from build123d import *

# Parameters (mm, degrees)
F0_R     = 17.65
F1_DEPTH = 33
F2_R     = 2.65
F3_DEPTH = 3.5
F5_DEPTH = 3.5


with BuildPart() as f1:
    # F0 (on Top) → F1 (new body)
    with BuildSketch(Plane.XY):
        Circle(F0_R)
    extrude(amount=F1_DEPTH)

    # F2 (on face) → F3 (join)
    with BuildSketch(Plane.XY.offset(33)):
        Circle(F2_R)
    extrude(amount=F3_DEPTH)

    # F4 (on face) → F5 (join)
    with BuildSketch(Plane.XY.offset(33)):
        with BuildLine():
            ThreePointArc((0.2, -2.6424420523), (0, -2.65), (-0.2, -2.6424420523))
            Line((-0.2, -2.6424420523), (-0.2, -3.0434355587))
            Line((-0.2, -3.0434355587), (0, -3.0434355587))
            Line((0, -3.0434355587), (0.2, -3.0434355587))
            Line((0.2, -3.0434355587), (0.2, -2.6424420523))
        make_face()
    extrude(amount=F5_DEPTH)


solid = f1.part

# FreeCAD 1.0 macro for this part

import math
import FreeCAD as App
import Part
import Sketcher

V = App.Vector
Q = App.Units.Quantity

doc = App.newDocument("Part")
body = doc.addObject("PartDesign::Body", "Body")

sketch1 = body.newObject("Sketcher::SketchObject", "Sketch")
sketch1.AttachmentSupport = (doc.getObject("XY_Plane"), [""])
sketch1.MapMode = "FlatFace"
sketch1.addGeometry(Part.Circle(V(0, 0, 0), V(0, 0, 1), 18), False)
sketch1.addConstraint(Sketcher.Constraint("Coincident", 0, 3, -1, 1))
sketch1.addConstraint(Sketcher.Constraint("Diameter", 0, Q("35.3 mm")))
pad1 = body.newObject("PartDesign::Pad", "Pad")
pad1.Profile = sketch1
pad1.Length = 33

sketch2 = body.newObject("Sketcher::SketchObject", "Sketch001")
sketch2.AttachmentSupport = (doc.getObject("XY_Plane"), [""])
sketch2.MapMode = "FlatFace"
sketch2.AttachmentOffset = App.Placement(V(0, 0, 33), App.Rotation())
sketch2.addGeometry(Part.Circle(V(0, 0, 0), V(0, 0, 1), 2.6), False)
sketch2.addConstraint(Sketcher.Constraint("Coincident", 0, 3, -1, 1))
sketch2.addConstraint(Sketcher.Constraint("Diameter", 0, Q("5.3 mm")))
pad2 = body.newObject("PartDesign::Pad", "Pad001")
pad2.Profile = sketch2
pad2.Length = 3.5

sketch3 = body.newObject("Sketcher::SketchObject", "Sketch002")
sketch3.AttachmentSupport = (doc.getObject("XY_Plane"), [""])
sketch3.MapMode = "FlatFace"
sketch3.AttachmentOffset = App.Placement(V(0, 0, 33), App.Rotation())
sketch3.addGeometry(Part.ArcOfCircle(Part.Circle(V(0, 0, 0), V(0, 0, 1), 2.65), math.radians(-94.33), math.radians(-85.67)), False)
sketch3.addGeometry(Part.LineSegment(V(-0.2, -2.64, 0), V(-0.2, -3.04, 0)), False)
sketch3.addGeometry(Part.LineSegment(V(-0.2, -3.04, 0), V(0.2, -3.04, 0)), False)
sketch3.addGeometry(Part.LineSegment(V(0.2, -3.04, 0), V(0.2, -2.64, 0)), False)
sketch3.addConstraint(Sketcher.Constraint("Coincident", 0, 1, 1, 1))
sketch3.addConstraint(Sketcher.Constraint("Coincident", 1, 2, 2, 1))
sketch3.addConstraint(Sketcher.Constraint("Coincident", 2, 2, 3, 1))
sketch3.addConstraint(Sketcher.Constraint("Coincident", 3, 2, 0, 2))
sketch3.addConstraint(Sketcher.Constraint("Vertical", 1))
sketch3.addConstraint(Sketcher.Constraint("Horizontal", 2))
sketch3.addConstraint(Sketcher.Constraint("Vertical", 3))
sketch3.addConstraint(Sketcher.Constraint("Coincident", 0, 3, -1, 1))
sketch3.addConstraint(Sketcher.Constraint("Horizontal", 0, 1, 3, 2))
sketch3.addConstraint(Sketcher.Constraint("Radius", 0, Q("2.65 mm")))
sketch3.addConstraint(Sketcher.Constraint("DistanceX", 2, 1, 2, 2, Q("0.4 mm")))
sketch3.addConstraint(Sketcher.Constraint("DistanceY", 1, 2, 1, 1, Q("0.400994 mm")))
pad3 = body.newObject("PartDesign::Pad", "Pad002")
pad3.Profile = sketch3
pad3.Length = 3.5

doc.recompute()
